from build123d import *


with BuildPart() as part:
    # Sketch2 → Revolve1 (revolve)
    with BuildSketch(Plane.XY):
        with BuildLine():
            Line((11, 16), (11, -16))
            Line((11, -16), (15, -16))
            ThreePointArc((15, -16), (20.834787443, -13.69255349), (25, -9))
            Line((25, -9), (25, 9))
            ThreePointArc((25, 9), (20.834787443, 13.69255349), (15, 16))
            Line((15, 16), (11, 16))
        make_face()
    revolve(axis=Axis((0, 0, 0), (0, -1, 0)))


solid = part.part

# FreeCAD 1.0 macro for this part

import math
import FreeCAD as App
import Part
import Sketcher

V = App.Vector
Q = App.Units.Quantity

doc = App.newDocument("Part")
body = doc.addObject("PartDesign::Body", "Body")

# Sketch on XY plane
sketch1 = body.newObject("Sketcher::SketchObject", "Sketch")
sketch1.AttachmentSupport = (doc.getObject("XY_Plane"), [""])
sketch1.MapMode = "FlatFace"
sketch1.addGeometry([
    Part.LineSegment(V(11, 16, 0), V(11, -16, 0)),  # 0
    Part.LineSegment(V(11, -16, 0), V(15, -16, 0)),  # 1
    Part.ArcOfCircle(Part.Circle(V(13.1, -2.6, 0), V(0, 0, 1), 13.5), math.radians(-82), math.radians(-28)),  # 2
    Part.LineSegment(V(25, -9, 0), V(25, 9, 0)),  # 3
    Part.ArcOfCircle(Part.Circle(V(13.1, 2.6, 0), V(0, 0, 1), 13.5), math.radians(28), math.radians(82)),  # 4
    Part.LineSegment(V(15, 16, 0), V(11, 16, 0)),  # 5
], False)
sketch1.addConstraint([
    Sketcher.Constraint("Coincident", 0, 2, 1, 1),
    Sketcher.Constraint("Coincident", 1, 2, 2, 1),
    Sketcher.Constraint("Coincident", 2, 2, 3, 1),
    Sketcher.Constraint("Coincident", 3, 2, 4, 1),
    Sketcher.Constraint("Coincident", 4, 2, 5, 1),
    Sketcher.Constraint("Coincident", 5, 2, 0, 1),
    Sketcher.Constraint("Vertical", 0),
    Sketcher.Constraint("Horizontal", 1),
    Sketcher.Constraint("Vertical", 3),
    Sketcher.Constraint("Horizontal", 5),
    Sketcher.Constraint("Equal", 2, 4),
    Sketcher.Constraint("Symmetric", 2, 3, 4, 3, -1),
    Sketcher.Constraint("Vertical", 1, 2, 4, 2),
    Sketcher.Constraint("DistanceX", 1, 1, 1, 2, Q("4 mm")),
    Sketcher.Constraint("DistanceY", 0, 2, 0, 1, Q("32 mm")),
    Sketcher.Constraint("DistanceY", 3, 1, 3, 2, Q("18 mm")),
    Sketcher.Constraint("DistanceX", -1, 1, 0, 2, Q("11 mm")),
    Sketcher.Constraint("DistanceX", -1, 1, 2, 2, Q("25 mm")),
    Sketcher.Constraint("Radius", 2, Q("13.522406 mm")),
])
revolution = body.newObject("PartDesign::Revolution", "Revolution")
revolution.Profile = sketch1
revolution.ReferenceAxis = (sketch1, ["V_Axis"])
revolution.Angle = 360

doc.recompute()
